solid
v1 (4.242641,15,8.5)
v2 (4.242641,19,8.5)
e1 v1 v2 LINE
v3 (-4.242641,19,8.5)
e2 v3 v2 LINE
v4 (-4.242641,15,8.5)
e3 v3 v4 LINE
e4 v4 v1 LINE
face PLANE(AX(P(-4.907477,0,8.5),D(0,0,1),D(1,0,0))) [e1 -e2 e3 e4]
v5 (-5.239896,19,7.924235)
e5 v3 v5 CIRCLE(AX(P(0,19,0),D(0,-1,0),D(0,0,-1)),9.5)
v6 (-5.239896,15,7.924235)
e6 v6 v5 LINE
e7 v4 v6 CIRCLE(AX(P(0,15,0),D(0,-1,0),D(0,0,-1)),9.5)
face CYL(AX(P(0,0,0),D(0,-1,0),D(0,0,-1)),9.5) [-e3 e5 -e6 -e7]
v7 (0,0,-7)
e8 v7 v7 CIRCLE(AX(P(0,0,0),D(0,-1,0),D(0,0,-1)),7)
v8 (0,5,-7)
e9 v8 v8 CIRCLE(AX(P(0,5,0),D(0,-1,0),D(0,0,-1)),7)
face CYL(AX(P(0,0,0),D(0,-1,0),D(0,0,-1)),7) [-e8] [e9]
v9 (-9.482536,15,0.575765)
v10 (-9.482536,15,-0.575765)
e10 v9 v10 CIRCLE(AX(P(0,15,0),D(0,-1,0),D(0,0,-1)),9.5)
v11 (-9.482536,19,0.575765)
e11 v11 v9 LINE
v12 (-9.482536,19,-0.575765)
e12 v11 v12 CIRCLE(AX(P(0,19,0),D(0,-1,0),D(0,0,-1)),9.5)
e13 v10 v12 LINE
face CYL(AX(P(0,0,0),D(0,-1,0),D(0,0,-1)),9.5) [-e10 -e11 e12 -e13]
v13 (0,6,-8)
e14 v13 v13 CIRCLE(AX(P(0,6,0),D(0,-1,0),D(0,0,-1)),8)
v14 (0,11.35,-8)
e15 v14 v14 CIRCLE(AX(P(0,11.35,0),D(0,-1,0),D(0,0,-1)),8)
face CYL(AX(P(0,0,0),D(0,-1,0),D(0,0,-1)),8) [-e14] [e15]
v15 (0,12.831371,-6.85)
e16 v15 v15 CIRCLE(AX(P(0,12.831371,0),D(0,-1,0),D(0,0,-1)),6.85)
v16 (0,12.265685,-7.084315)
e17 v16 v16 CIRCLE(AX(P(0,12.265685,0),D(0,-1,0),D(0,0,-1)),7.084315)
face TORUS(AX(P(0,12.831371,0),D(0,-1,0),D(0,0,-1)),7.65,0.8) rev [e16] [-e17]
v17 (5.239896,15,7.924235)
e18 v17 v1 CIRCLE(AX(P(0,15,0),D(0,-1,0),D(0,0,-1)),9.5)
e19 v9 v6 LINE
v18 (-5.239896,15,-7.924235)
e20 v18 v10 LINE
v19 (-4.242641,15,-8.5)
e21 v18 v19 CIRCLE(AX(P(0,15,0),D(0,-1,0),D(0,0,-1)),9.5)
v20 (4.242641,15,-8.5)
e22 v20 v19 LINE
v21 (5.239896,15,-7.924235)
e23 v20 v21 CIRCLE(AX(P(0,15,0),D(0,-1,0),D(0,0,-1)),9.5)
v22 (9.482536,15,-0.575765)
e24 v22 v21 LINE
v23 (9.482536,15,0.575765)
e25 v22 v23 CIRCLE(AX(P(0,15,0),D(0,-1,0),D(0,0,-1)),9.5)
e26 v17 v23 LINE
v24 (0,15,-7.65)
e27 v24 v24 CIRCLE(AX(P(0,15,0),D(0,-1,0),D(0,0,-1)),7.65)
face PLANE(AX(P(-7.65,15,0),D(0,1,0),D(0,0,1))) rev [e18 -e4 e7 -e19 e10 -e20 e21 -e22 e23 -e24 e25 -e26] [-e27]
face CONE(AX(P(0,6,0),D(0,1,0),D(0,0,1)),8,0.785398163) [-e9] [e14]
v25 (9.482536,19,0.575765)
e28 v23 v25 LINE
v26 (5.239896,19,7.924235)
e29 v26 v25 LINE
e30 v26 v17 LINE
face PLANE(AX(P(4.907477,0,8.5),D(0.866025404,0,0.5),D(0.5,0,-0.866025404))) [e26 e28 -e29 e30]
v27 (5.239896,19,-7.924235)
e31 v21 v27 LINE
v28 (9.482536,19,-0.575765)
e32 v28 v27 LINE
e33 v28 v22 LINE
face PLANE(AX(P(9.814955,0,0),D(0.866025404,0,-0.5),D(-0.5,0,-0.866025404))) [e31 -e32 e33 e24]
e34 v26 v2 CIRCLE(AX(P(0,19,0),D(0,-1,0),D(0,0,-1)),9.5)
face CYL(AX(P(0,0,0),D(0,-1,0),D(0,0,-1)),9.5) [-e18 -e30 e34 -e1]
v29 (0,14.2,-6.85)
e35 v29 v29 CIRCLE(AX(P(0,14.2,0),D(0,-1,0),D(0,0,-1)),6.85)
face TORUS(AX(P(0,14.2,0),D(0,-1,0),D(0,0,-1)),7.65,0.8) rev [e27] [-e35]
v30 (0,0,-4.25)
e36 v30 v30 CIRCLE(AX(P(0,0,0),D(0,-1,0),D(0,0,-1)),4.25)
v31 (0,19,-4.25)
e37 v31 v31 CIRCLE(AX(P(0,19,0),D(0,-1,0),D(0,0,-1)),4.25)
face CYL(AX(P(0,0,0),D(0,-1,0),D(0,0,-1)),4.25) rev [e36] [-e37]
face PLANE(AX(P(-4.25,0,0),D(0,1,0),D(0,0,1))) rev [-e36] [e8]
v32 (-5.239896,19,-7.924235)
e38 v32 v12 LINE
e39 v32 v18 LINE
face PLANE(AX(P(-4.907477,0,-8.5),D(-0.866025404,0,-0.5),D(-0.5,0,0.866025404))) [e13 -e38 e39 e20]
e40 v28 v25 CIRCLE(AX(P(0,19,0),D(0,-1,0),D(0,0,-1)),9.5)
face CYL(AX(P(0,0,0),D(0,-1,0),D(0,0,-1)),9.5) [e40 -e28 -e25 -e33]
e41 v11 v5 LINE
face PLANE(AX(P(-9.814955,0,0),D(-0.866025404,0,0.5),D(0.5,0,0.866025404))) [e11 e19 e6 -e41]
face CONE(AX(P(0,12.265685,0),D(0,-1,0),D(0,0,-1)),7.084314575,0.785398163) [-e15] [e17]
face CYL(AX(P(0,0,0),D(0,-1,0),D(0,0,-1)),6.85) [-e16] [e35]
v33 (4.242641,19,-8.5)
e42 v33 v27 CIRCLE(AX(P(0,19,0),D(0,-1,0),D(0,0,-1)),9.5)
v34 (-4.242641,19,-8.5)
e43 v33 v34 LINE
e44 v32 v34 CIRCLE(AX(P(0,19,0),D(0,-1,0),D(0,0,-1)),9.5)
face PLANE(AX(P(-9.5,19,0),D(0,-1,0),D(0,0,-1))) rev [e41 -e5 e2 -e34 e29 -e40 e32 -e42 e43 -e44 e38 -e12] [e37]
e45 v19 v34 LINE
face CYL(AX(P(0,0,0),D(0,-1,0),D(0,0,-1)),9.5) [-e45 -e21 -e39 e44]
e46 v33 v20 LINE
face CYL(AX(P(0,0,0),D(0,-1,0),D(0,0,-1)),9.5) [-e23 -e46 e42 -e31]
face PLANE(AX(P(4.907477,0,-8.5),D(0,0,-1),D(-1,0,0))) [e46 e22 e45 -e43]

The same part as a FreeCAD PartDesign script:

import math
import FreeCAD as App
import Part
import Sketcher

V = App.Vector
Q = App.Units.Quantity

doc = App.newDocument("Part")
body = doc.addObject("PartDesign::Body", "Body")

# Sketch on XY plane
sketch1 = body.newObject("Sketcher::SketchObject", "Sketch")
sketch1.AttachmentSupport = (doc.getObject("XY_Plane"), [""])
sketch1.MapMode = "FlatFace"
sketch1.addGeometry([
    Part.LineSegment(V(-7, 0, 0), V(-4.2, 0, 0)),  # 0
    Part.LineSegment(V(-4.2, 0, 0), V(-4.2, 19, 0)),  # 1
    Part.LineSegment(V(-4.2, 19, 0), V(-9.5, 19, 0)),  # 2
    Part.LineSegment(V(-9.5, 19, 0), V(-9.5, 15, 0)),  # 3
    Part.LineSegment(V(-9.5, 15, 0), V(-7.7, 15, 0)),  # 4
    Part.ArcOfCircle(Part.Circle(V(-7.7, 14.2, 0), V(0, 0, 1), 0.8), math.radians(0), math.radians(90)),  # 5
    Part.LineSegment(V(-6.8, 14.2, 0), V(-6.8, 12.8, 0)),  # 6
    Part.ArcOfCircle(Part.Circle(V(-7.7, 12.8, 0), V(0, 0, 1), 0.8), math.radians(-45), math.radians(0)),  # 7
    Part.LineSegment(V(-7.1, 12.3, 0), V(-8, 11.3, 0)),  # 8
    Part.LineSegment(V(-8, 11.3, 0), V(-8, 6, 0)),  # 9
    Part.LineSegment(V(-8, 6, 0), V(-7, 5, 0)),  # 10
    Part.LineSegment(V(-7, 5, 0), V(-7, 0, 0)),  # 11
], False)
sketch1.addConstraint([
    Sketcher.Constraint("Coincident", 0, 2, 1, 1),
    Sketcher.Constraint("Coincident", 1, 2, 2, 1),
    Sketcher.Constraint("Coincident", 2, 2, 3, 1),
    Sketcher.Constraint("Coincident", 3, 2, 4, 1),
    Sketcher.Constraint("Tangent", 4, 2, 5, 2),
    Sketcher.Constraint("Tangent", 5, 1, 6, 1),
    Sketcher.Constraint("Tangent", 6, 2, 7, 2),
    Sketcher.Constraint("Tangent", 7, 1, 8, 1),
    Sketcher.Constraint("Coincident", 8, 2, 9, 1),
    Sketcher.Constraint("Coincident", 9, 2, 10, 1),
    Sketcher.Constraint("Coincident", 10, 2, 11, 1),
    Sketcher.Constraint("Coincident", 11, 2, 0, 1),
    Sketcher.Constraint("Horizontal", 0),
    Sketcher.Constraint("Vertical", 1),
    Sketcher.Constraint("Horizontal", 2),
    Sketcher.Constraint("Vertical", 3),
    Sketcher.Constraint("Horizontal", 4),
    Sketcher.Constraint("Vertical", 6),
    Sketcher.Constraint("Vertical", 9),
    Sketcher.Constraint("Vertical", 11),
    Sketcher.Constraint("Equal", 5, 7),
    Sketcher.Constraint("PointOnObject", 0, 2, -1),
    Sketcher.Constraint("Perpendicular", 8, 10),
    Sketcher.Constraint("Radius", 5, Q("0.8 mm")),
    Sketcher.Constraint("DistanceY", 1, 1, 1, 2, Q("19 mm")),
    Sketcher.Constraint("DistanceY", 3, 2, 3, 1, Q("4 mm")),
    Sketcher.Constraint("DistanceY", 11, 2, 11, 1, Q("5 mm")),
    Sketcher.Constraint("Angle", 8, Q("-135 deg")),
    Sketcher.Constraint("DistanceX", 8, 2, -1, 1, Q("8 mm")),
    Sketcher.Constraint("DistanceY", -1, 1, 9, 2, Q("6 mm")),
    Sketcher.Constraint("DistanceX", 0, 1, 0, 2, Q("2.75 mm")),
    Sketcher.Constraint("DistanceX", 2, 2, 2, 1, Q("5.25 mm")),
    Sketcher.Constraint("DistanceX", 4, 1, 4, 2, Q("1.85 mm")),
    Sketcher.Constraint("DistanceY", 9, 2, 9, 1, Q("5.35 mm")),
])
revolution = body.newObject("PartDesign::Revolution", "Revolution")
revolution.Profile = sketch1
revolution.ReferenceAxis = (sketch1, ["V_Axis"])
revolution.Angle = 360

# Sketch on XZ plane
sketch2 = body.newObject("Sketcher::SketchObject", "Sketch001")
sketch2.AttachmentSupport = (doc.getObject("XZ_Plane"), [""])
sketch2.MapMode = "FlatFace"
sketch2.AttachmentOffset = App.Placement(V(0, 0, -19), App.Rotation())
sketch2.addGeometry([
    Part.LineSegment(V(-14, -14, 0), V(-14, 14, 0)),  # 0
    Part.LineSegment(V(-14, 14, 0), V(14, 14, 0)),  # 1
    Part.LineSegment(V(14, 14, 0), V(14, -14, 0)),  # 2
    Part.LineSegment(V(14, -14, 0), V(-14, -14, 0)),  # 3
    Part.LineSegment(V(5, -8, 0), V(10, 0, 0)),  # 4
    Part.LineSegment(V(10, 0, 0), V(5, 8, 0)),  # 5
    Part.LineSegment(V(5, 8, 0), V(-5, 8, 0)),  # 6
    Part.LineSegment(V(-5, 8, 0), V(-10, 0, 0)),  # 7
    Part.LineSegment(V(-10, 0, 0), V(-5, -8, 0)),  # 8
    Part.LineSegment(V(-5, -8, 0), V(5, -8, 0)),  # 9
], False)
sketch2.addConstraint([
    Sketcher.Constraint("Coincident", 0, 2, 1, 1),
    Sketcher.Constraint("Coincident", 1, 2, 2, 1),
    Sketcher.Constraint("Coincident", 2, 2, 3, 1),
    Sketcher.Constraint("Coincident", 3, 2, 0, 1),
    Sketcher.Constraint("Coincident", 4, 2, 5, 1),
    Sketcher.Constraint("Coincident", 5, 2, 6, 1),
    Sketcher.Constraint("Coincident", 6, 2, 7, 1),
    Sketcher.Constraint("Coincident", 7, 2, 8, 1),
    Sketcher.Constraint("Coincident", 8, 2, 9, 1),
    Sketcher.Constraint("Coincident", 9, 2, 4, 1),
    Sketcher.Constraint("Vertical", 0),
    Sketcher.Constraint("Horizontal", 1),
    Sketcher.Constraint("Vertical", 2),
    Sketcher.Constraint("Horizontal", 3),
    Sketcher.Constraint("Horizontal", 6),
    Sketcher.Constraint("Horizontal", 9),
    Sketcher.Constraint("Symmetric", 0, 2, 2, 2, -1, 1),
    Sketcher.Constraint("Symmetric", 4, 2, 7, 2, -1, 1),
    Sketcher.Constraint("Symmetric", 5, 2, 8, 2, -1, 1),
    Sketcher.Constraint("PointOnObject", 4, 2, -1),
    Sketcher.Constraint("Parallel", 4, 7),
    Sketcher.Constraint("Vertical", 6, 2, 8, 2),
    Sketcher.Constraint("Equal", 3, 0),
    Sketcher.Constraint("Angle", 4, Q("60 deg")),
    Sketcher.Constraint("DistanceY", 8, 2, 6, 2, Q("17 mm")),
    Sketcher.Constraint("DistanceX", 1, 1, 1, 2, Q("27.582 mm")),
    Sketcher.Constraint("DistanceX", 6, 2, 6, 1, Q("9.814955 mm")),
])
pocket1 = body.newObject("PartDesign::Pocket", "Pocket")
pocket1.Profile = sketch2
pocket1.Type = "ThroughAll"
pocket1.Reversed = True

doc.recompute()
